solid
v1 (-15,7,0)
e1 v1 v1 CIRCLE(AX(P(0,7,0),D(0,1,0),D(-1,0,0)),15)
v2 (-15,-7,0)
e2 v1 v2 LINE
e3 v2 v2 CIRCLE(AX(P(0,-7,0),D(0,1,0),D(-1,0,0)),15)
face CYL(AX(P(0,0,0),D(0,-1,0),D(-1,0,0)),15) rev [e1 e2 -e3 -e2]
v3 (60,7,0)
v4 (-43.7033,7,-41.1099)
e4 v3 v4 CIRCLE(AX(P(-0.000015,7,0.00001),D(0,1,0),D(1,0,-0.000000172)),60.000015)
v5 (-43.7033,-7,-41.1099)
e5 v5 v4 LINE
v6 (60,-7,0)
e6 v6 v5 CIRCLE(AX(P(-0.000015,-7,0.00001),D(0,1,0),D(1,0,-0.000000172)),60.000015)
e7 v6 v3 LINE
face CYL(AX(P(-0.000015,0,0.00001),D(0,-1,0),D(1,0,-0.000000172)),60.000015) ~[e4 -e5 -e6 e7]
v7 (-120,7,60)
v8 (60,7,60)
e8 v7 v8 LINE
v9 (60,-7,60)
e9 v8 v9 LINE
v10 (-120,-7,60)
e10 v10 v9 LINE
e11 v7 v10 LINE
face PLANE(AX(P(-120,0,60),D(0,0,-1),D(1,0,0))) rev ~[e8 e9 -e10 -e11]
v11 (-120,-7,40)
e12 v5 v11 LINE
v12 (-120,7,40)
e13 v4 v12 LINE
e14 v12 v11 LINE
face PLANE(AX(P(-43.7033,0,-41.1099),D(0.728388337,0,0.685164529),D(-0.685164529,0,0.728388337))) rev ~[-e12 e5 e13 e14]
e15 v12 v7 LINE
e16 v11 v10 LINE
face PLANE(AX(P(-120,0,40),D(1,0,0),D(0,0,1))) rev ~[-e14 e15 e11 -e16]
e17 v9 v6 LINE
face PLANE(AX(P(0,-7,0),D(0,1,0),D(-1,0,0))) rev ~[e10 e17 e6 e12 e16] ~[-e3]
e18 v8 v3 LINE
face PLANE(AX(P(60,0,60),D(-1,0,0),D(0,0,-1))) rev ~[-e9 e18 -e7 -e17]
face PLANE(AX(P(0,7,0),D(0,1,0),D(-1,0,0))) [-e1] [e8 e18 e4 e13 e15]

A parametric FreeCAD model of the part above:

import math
import FreeCAD as App
import Part
import Sketcher

doc = App.newDocument("Part")
body = doc.addObject("PartDesign::Body", "Body")

sketch1 = doc.addObject("Sketcher::SketchObject", "Sketch")
body.addObject(sketch1)
sketch1.AttachmentSupport = (doc.XZ_Plane, [""])
sketch1.MapMode = "FlatFace"
sketch1.addGeometry(Part.LineSegment(App.Vector(60, 60, 0), App.Vector(60, 0, 0)), False)
sketch1.addGeometry(Part.ArcOfCircle(Part.Circle(App.Vector(0, 0, 0), App.Vector(0, 0, 1), 60), math.radians(-137), math.radians(0)), False)
sketch1.addGeometry(Part.LineSegment(App.Vector(-44, -41, 0), App.Vector(-120, 40, 0)), False)
sketch1.addGeometry(Part.LineSegment(App.Vector(-120, 40, 0), App.Vector(-120, 60, 0)), False)
sketch1.addGeometry(Part.LineSegment(App.Vector(-120, 60, 0), App.Vector(60, 60, 0)), False)
sketch1.addGeometry(Part.Circle(App.Vector(0, 0, 0), App.Vector(0, 0, 1), 15), False)
sketch1.addConstraint(Sketcher.Constraint("Tangent", 0, 2, 1, 2))
sketch1.addConstraint(Sketcher.Constraint("Tangent", 1, 1, 2, 1))
sketch1.addConstraint(Sketcher.Constraint("Coincident", 2, 2, 3, 1))
sketch1.addConstraint(Sketcher.Constraint("Coincident", 3, 2, 4, 1))
sketch1.addConstraint(Sketcher.Constraint("Coincident", 4, 2, 0, 1))
sketch1.addConstraint(Sketcher.Constraint("Vertical", 0))
sketch1.addConstraint(Sketcher.Constraint("Vertical", 3))
sketch1.addConstraint(Sketcher.Constraint("Horizontal", 4))
sketch1.addConstraint(Sketcher.Constraint("Coincident", 1, 3, -1, 1))
sketch1.addConstraint(Sketcher.Constraint("Coincident", 5, 3, -1, 1))
sketch1.addConstraint(Sketcher.Constraint("Diameter", 5, 30.0))
sketch1.addConstraint(Sketcher.Constraint("Radius", 1, 60.0))
sketch1.addConstraint(Sketcher.Constraint("DistanceX", 4, 1, 4, 2, 180.0))
sketch1.addConstraint(Sketcher.Constraint("DistanceY", 0, 2, 0, 1, 60.0))
sketch1.addConstraint(Sketcher.Constraint("DistanceY", 3, 1, 3, 2, 20.0))
pad1 = doc.addObject("PartDesign::Pad", "Pad")
body.addObject(pad1)
pad1.Profile = sketch1
pad1.Length = 14
pad1.Midplane = True

doc.recompute()
